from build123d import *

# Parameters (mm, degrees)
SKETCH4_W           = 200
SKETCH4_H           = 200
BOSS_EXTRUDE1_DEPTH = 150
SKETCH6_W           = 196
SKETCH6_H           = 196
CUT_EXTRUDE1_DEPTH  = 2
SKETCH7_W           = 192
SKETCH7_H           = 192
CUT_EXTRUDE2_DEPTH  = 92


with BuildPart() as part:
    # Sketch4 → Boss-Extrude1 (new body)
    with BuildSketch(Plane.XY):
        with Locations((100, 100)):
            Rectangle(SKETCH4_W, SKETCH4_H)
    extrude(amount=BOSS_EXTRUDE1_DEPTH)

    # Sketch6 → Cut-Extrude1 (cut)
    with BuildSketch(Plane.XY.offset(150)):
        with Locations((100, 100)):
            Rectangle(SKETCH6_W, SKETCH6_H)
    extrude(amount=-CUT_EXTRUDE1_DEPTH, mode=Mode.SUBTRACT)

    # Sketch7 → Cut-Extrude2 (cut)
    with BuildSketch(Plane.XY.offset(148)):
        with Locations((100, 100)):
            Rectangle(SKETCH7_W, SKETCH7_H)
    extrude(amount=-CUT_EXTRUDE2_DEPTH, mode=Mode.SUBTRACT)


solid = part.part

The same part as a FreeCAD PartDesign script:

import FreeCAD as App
import Part
import Sketcher
from FreeCAD import Vector


def add_polygon(sketch, points):
    """Adds a closed chain of lines whose ends are joined by coincident constraints."""
    first, n = sketch.GeometryCount, len(points)
    for a, b in zip(points, points[1:] + points[:1]):
        sketch.addGeometry(Part.LineSegment(App.Vector(*a, 0), App.Vector(*b, 0)), False)
    for i in range(n):
        sketch.addConstraint(Sketcher.Constraint("Coincident", first + i, 2, first + (i + 1) % n, 1))

doc = App.newDocument("Part")
body = doc.addObject("PartDesign::Body", "Body")

sketch1 = body.newObject("Sketcher::SketchObject", "Sketch")
sketch1.AttachmentSupport = (doc.getObject("XY_Plane"), [""])
sketch1.MapMode = "FlatFace"
add_polygon(sketch1, [(0, 200), (0, 0), (200, 0), (200, 200)])
sketch1.addConstraint([
    Sketcher.Constraint("Vertical", 0),
    Sketcher.Constraint("Horizontal", 1),
    Sketcher.Constraint("Vertical", 2),
    Sketcher.Constraint("Horizontal", 3),
    Sketcher.Constraint("Coincident", 0, 2, -1, 1),
    Sketcher.Constraint("Equal", 3, 0),
    Sketcher.Constraint("DistanceX", 1, 1, 1, 2, 200.0),
])
pad1 = body.newObject("PartDesign::Pad", "Pad")
pad1.Profile = sketch1
pad1.Length = 150

sketch2 = body.newObject("Sketcher::SketchObject", "Sketch001")
sketch2.AttachmentSupport = (doc.getObject("XY_Plane"), [""])
sketch2.MapMode = "FlatFace"
sketch2.AttachmentOffset = App.Placement(Vector(0, 0, 150), App.Rotation())
add_polygon(sketch2, [(2, 198), (2, 2), (198, 2), (198, 198)])
sketch2.addConstraint([
    Sketcher.Constraint("Vertical", 0),
    Sketcher.Constraint("Horizontal", 1),
    Sketcher.Constraint("Vertical", 2),
    Sketcher.Constraint("Horizontal", 3),
    Sketcher.Constraint("Equal", 3, 0),
    Sketcher.Constraint("DistanceX", 1, 1, 1, 2, 196.0),
    Sketcher.Constraint("DistanceX", -1, 1, 0, 2, 2.0),
    Sketcher.Constraint("DistanceY", -1, 1, 0, 2, 2.0),
])
pocket1 = body.newObject("PartDesign::Pocket", "Pocket")
pocket1.Profile = sketch2
pocket1.Length = 2

sketch3 = body.newObject("Sketcher::SketchObject", "Sketch002")
sketch3.AttachmentSupport = (doc.getObject("XY_Plane"), [""])
sketch3.MapMode = "FlatFace"
sketch3.AttachmentOffset = App.Placement(Vector(0, 0, 148), App.Rotation())
add_polygon(sketch3, [(4, 196), (4, 4), (196, 4), (196, 196)])
sketch3.addConstraint([
    Sketcher.Constraint("Vertical", 0),
    Sketcher.Constraint("Horizontal", 1),
    Sketcher.Constraint("Vertical", 2),
    Sketcher.Constraint("Horizontal", 3),
    Sketcher.Constraint("Equal", 3, 0),
    Sketcher.Constraint("DistanceX", 1, 1, 1, 2, 192.0),
    Sketcher.Constraint("DistanceX", -1, 1, 0, 2, 4.0),
    Sketcher.Constraint("DistanceY", -1, 1, 0, 2, 4.0),
])
pocket2 = body.newObject("PartDesign::Pocket", "Pocket001")
pocket2.Profile = sketch3
pocket2.Length = 92

doc.recompute()
